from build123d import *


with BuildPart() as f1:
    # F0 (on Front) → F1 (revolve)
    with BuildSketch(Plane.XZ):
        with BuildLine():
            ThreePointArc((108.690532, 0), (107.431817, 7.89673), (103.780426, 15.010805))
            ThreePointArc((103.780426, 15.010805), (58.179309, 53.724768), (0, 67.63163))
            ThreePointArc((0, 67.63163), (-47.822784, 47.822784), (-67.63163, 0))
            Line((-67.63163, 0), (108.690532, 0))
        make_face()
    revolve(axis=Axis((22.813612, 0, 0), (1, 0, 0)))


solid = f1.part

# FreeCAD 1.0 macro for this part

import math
import FreeCAD as App
import Part
import Sketcher
Q = App.Units.Quantity

doc = App.newDocument("Part")
body = doc.addObject("PartDesign::Body", "Body")

sketch1 = body.newObject("Sketcher::SketchObject", "Sketch")
sketch1.AttachmentSupport = (doc.getObject("XZ_Plane"), [""])
sketch1.MapMode = "FlatFace"
sketch1.addGeometry([
    Part.ArcOfCircle(Part.Circle(App.Vector(83.290522, -0.000002, 0), App.Vector(0, 0, 1), 25.40001), math.radians(0.000005), math.radians(36.22633)),
    Part.ArcOfCircle(Part.Circle(App.Vector(-0.000001, -61.018275, 0), App.Vector(0, 0, 1), 128.649905), math.radians(36.22634), math.radians(89.999999)),
    Part.ArcOfCircle(Part.Circle(App.Vector(0.000001, -0.000001, 0), App.Vector(0, 0, 1), 67.631631), math.radians(90.000001), math.radians(179.999999)),
    Part.LineSegment(App.Vector(-67.63163, 0, 0), App.Vector(108.690532, 0, 0)),
], False)
sketch1.addConstraint([
    Sketcher.Constraint("Tangent", 0, 2, 1, 1),
    Sketcher.Constraint("Tangent", 1, 2, 2, 1),
    Sketcher.Constraint("Coincident", 2, 2, 3, 1),
    Sketcher.Constraint("Coincident", 3, 2, 0, 1),
    Sketcher.Constraint("Horizontal", 3),
    Sketcher.Constraint("Coincident", 2, 3, -1, 1),
    Sketcher.Constraint("PointOnObject", 1, 3, -2),
    Sketcher.Constraint("PointOnObject", 2, 2, -1),
    Sketcher.Constraint("Horizontal", 0, 3, 2, 3),
    Sketcher.Constraint("Radius", 0, Q("25.40001 mm")),
    Sketcher.Constraint("Radius", 2, Q("67.631631 mm")),
    Sketcher.Constraint("Radius", 1, Q("128.649905 mm")),
])
revolution = body.newObject("PartDesign::Revolution", "Revolution")
revolution.Profile = sketch1
revolution.ReferenceAxis = (sketch1, ["H_Axis"])
revolution.Angle = 360

doc.recompute()
